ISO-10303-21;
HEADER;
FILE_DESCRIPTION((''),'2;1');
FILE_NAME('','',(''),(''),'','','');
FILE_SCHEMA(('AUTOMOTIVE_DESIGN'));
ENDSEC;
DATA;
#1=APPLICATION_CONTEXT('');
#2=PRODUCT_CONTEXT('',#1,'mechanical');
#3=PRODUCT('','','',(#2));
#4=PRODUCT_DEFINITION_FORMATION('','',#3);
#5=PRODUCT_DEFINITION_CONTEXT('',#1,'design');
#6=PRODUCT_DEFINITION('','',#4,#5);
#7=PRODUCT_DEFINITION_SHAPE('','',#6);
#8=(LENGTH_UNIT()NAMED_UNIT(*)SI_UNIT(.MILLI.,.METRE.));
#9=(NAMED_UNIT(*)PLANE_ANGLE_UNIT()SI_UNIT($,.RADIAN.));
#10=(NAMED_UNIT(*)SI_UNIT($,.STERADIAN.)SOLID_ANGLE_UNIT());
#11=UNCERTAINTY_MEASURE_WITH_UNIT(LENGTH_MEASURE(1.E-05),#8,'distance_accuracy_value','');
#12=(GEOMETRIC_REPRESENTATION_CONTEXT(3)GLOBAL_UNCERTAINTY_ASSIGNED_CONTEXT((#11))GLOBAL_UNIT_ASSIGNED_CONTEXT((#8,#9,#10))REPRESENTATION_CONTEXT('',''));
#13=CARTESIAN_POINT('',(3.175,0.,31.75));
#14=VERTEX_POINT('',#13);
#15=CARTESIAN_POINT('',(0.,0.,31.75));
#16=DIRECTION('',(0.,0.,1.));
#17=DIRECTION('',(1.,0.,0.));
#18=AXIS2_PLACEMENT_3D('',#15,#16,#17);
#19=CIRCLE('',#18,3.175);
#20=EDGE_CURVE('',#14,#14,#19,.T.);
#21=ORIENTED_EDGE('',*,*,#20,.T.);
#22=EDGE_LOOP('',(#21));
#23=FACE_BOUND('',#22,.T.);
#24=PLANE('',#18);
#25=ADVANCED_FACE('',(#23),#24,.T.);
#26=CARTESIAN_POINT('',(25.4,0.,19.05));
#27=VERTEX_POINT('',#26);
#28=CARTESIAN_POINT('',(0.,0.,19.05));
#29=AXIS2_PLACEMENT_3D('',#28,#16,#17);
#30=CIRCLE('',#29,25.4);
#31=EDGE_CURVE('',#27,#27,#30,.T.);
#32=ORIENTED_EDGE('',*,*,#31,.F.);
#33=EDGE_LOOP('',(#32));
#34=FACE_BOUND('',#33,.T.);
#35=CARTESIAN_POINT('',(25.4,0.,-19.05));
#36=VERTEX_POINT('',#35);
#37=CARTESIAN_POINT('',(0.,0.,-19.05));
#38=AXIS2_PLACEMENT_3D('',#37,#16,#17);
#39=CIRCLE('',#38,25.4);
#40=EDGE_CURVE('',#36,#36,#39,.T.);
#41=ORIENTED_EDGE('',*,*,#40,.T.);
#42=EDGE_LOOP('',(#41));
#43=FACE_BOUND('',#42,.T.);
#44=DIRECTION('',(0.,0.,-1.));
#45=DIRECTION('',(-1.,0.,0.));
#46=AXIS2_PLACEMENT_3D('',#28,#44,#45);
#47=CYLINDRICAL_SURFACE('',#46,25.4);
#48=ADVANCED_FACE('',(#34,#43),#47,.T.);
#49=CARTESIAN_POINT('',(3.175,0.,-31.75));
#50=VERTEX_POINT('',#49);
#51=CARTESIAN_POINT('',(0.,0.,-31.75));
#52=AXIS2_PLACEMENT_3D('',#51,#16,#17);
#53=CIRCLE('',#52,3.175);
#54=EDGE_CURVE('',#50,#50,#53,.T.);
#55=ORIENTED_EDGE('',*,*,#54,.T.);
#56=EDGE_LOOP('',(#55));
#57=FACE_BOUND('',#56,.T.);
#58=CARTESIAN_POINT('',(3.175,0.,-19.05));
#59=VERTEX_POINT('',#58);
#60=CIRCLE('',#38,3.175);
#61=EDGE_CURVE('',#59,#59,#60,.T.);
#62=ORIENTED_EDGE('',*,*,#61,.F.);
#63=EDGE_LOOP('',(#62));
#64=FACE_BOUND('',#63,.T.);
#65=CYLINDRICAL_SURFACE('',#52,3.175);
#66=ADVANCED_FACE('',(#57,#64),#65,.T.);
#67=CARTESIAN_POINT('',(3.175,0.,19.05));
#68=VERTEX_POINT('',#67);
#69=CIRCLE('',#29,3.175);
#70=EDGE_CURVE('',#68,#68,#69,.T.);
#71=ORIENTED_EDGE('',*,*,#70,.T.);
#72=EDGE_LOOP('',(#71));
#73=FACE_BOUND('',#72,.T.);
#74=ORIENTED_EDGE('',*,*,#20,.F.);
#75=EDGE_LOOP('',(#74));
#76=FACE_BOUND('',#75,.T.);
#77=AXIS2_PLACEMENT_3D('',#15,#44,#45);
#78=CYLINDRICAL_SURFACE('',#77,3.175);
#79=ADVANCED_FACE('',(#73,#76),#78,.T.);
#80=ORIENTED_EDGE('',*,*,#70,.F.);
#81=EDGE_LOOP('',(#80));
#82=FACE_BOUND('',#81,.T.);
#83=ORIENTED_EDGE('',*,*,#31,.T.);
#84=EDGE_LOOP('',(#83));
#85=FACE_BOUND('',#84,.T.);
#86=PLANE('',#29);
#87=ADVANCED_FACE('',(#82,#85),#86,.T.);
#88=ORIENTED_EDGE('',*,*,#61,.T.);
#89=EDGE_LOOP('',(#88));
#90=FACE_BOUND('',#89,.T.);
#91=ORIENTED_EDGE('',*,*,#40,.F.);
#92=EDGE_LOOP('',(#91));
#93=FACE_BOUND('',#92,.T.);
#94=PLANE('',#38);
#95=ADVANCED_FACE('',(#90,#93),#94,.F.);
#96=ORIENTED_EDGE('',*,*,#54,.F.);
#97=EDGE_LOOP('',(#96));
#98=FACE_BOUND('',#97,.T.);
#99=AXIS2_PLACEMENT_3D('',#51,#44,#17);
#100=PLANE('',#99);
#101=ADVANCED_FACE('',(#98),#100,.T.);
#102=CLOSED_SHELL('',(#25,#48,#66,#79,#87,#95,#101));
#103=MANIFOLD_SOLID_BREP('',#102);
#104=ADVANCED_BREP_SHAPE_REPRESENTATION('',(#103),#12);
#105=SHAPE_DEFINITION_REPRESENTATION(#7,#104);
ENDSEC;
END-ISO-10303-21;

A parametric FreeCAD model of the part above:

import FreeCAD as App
import Part
import Sketcher

V = App.Vector
Q = App.Units.Quantity

doc = App.newDocument("Part")
params = doc.addObject("Spreadsheet::Sheet", "Params")
for row, (alias, value) in enumerate([
    ("sketch1_diameter", "2 in"),
    ("pad1_length", "1.5 in"),
    ("sketch2_diameter", "0.25 in"),
    ("pad2_length", "0.5 in"),
], start=1):
    params.set(f"A{row}", alias)
    params.set(f"B{row}", "=" + value)
    params.setAlias(f"B{row}", alias)

body = doc.addObject("PartDesign::Body", "Body")

sketch1 = doc.addObject("Sketcher::SketchObject", "Sketch")
body.addObject(sketch1)
sketch1.AttachmentSupport = (doc.XY_Plane, [""])
sketch1.MapMode = "FlatFace"
sketch1.addGeometry(Part.Circle(V(0, 0, 0), V(0, 0, 1), 25), False)
sketch1.addConstraint(Sketcher.Constraint("Coincident", 0, 3, -1, 1))
sketch1.addConstraint(Sketcher.Constraint("Diameter", 0, Q("2 in")))
sketch1.setExpression("Constraints[1]", "Params.sketch1_diameter")
pad1 = doc.addObject("PartDesign::Pad", "Pad")
body.addObject(pad1)
pad1.Profile = sketch1
pad1.setExpression("Length", "Params.pad1_length")
pad1.Midplane = True

sketch2 = doc.addObject("Sketcher::SketchObject", "Sketch001")
body.addObject(sketch2)
sketch2.AttachmentSupport = (doc.XY_Plane, [""])
sketch2.MapMode = "FlatFace"
sketch2.AttachmentOffset = App.Placement(V(0, 0, 0.75 * 25.4), App.Rotation())
sketch2.addGeometry(Part.Circle(V(0, 0, 0), V(0, 0, 1), 3.2), False)
sketch2.addConstraint(Sketcher.Constraint("Coincident", 0, 3, -1, 1))
sketch2.addConstraint(Sketcher.Constraint("Diameter", 0, Q("0.25 in")))
sketch2.setExpression("Constraints[1]", "Params.sketch2_diameter")
pad2 = doc.addObject("PartDesign::Pad", "Pad001")
body.addObject(pad2)
pad2.Profile = sketch2
pad2.setExpression("Length", "Params.pad2_length")
doc.recompute()

mirrored = doc.addObject("PartDesign::Mirrored", "Mirrored")
body.addObject(mirrored)
mirrored.Originals = [pad2]
mirrored.MirrorPlane = (doc.XY_Plane, [""])
body.Tip = mirrored

doc.recompute()
